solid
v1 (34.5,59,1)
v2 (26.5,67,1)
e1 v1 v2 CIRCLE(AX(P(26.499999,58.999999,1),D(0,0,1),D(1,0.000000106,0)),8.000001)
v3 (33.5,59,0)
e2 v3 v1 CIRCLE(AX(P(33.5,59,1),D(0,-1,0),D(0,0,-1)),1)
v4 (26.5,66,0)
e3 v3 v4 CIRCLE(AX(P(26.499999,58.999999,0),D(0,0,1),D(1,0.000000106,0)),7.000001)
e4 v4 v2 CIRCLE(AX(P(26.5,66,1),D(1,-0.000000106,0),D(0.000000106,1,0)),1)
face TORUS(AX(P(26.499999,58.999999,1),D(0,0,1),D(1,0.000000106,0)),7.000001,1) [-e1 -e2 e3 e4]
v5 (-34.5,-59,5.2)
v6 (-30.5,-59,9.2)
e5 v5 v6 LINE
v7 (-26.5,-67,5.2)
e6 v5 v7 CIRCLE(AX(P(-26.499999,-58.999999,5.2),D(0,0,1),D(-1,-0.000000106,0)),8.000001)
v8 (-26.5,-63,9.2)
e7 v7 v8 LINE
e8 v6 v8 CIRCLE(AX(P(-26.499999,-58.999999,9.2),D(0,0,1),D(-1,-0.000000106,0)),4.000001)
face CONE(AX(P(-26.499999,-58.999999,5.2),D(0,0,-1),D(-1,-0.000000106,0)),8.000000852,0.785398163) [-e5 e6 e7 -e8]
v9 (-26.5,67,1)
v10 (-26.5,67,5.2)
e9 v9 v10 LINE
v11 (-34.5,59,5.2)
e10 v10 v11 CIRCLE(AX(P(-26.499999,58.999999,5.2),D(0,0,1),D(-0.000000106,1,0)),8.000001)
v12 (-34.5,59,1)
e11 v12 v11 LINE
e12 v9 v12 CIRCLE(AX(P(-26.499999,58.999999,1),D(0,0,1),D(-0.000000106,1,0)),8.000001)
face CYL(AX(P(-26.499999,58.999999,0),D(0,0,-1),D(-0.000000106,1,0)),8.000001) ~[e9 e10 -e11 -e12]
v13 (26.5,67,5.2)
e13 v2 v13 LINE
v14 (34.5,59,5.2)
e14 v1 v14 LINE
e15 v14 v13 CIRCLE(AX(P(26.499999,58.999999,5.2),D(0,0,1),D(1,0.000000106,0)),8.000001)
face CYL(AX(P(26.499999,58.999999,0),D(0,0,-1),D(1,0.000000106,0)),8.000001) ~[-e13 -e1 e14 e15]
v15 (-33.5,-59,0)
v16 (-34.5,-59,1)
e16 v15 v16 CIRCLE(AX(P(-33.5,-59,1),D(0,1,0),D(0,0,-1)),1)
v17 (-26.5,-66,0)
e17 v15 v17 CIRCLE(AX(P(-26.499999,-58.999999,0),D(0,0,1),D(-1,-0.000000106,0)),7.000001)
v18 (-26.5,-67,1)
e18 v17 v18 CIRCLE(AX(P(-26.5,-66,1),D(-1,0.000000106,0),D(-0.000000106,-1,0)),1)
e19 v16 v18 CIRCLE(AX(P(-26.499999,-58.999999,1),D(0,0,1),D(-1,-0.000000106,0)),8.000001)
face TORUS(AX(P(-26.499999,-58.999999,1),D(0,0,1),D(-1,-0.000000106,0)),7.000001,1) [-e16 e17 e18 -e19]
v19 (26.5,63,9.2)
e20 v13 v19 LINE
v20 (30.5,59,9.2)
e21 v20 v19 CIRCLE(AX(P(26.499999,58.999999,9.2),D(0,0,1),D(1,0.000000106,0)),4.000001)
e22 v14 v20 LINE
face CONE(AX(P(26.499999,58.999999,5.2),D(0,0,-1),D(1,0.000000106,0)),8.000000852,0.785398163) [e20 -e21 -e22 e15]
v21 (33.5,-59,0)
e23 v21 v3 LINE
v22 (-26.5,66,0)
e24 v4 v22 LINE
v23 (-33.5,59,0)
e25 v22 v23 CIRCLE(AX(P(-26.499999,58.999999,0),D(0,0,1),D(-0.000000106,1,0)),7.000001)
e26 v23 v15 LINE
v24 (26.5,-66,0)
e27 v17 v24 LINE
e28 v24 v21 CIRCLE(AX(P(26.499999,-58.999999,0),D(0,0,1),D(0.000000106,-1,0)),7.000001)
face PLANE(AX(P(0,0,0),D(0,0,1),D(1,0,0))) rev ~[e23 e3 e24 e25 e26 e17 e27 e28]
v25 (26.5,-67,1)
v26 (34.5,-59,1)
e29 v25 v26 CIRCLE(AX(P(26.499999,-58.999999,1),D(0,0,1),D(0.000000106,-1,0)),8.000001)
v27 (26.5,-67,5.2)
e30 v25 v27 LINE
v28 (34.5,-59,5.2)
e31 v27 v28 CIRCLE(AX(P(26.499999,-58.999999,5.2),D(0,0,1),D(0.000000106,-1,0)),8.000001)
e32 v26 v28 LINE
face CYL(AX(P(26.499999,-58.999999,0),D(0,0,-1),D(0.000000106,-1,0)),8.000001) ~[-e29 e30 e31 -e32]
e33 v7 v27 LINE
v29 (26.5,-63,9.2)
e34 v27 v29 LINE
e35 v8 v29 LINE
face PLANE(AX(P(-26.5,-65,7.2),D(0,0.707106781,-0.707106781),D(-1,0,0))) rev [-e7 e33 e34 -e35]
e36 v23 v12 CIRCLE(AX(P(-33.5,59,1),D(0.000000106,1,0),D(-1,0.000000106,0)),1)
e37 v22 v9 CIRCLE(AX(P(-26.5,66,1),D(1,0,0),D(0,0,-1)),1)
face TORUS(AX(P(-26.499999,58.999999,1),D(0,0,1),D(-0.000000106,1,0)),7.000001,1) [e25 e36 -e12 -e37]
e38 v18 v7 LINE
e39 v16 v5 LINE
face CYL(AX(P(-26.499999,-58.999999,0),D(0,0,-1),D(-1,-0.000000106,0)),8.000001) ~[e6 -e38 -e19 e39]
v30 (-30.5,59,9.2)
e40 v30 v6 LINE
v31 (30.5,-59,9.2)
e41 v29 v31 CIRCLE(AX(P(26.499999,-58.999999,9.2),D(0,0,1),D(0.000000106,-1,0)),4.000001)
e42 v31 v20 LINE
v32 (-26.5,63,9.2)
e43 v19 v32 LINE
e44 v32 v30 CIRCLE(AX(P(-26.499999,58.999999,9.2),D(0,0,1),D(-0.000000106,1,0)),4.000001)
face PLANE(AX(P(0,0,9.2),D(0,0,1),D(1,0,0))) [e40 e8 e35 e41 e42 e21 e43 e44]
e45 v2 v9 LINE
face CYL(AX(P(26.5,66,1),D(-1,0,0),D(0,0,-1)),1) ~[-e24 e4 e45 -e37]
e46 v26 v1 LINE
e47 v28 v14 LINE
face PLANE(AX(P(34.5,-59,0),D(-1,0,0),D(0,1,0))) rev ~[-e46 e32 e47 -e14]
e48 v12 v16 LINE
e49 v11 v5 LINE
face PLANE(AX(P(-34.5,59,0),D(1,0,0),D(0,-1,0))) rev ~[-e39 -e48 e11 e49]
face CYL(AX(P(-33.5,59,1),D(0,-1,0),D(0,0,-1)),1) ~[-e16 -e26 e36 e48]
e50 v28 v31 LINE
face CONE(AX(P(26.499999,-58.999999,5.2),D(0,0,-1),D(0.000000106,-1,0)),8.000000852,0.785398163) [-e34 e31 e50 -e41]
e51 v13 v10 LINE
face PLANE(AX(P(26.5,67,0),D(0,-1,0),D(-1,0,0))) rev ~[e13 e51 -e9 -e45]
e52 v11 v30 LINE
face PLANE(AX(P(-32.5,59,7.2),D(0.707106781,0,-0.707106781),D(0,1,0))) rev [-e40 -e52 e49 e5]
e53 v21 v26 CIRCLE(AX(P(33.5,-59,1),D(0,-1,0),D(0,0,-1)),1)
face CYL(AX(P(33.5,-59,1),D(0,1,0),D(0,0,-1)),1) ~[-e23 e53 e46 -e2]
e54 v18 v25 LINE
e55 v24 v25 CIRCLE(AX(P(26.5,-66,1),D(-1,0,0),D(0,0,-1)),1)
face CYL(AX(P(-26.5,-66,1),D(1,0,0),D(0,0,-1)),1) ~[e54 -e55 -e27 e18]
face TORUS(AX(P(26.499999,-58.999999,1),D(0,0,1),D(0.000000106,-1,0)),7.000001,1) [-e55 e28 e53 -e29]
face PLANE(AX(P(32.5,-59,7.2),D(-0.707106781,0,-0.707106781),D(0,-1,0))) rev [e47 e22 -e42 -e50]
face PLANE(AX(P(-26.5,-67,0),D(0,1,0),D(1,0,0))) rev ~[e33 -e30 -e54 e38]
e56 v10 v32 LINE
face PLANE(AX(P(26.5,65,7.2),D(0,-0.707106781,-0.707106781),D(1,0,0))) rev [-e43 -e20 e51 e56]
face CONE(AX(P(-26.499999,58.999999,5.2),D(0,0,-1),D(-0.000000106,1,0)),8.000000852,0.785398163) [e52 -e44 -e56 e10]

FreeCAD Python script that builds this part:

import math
import FreeCAD as App
import Part
import Sketcher

V = App.Vector


def edges_at(feature, points):
    """Names of the edges that pass closest to the given points."""
    edges = feature.Shape.Edges
    near = lambda p: min(range(len(edges)), key=lambda i: edges[i].distToShape(Part.Vertex(*p))[0])
    return sorted({f"Edge{near(p) + 1}" for p in points})

doc = App.newDocument("Part")
body = doc.addObject("PartDesign::Body", "Body")

sketch1 = body.newObject("Sketcher::SketchObject", "Sketch")
sketch1.AttachmentSupport = (doc.getObject("XY_Plane"), [""])
sketch1.MapMode = "FlatFace"
sketch1.addGeometry([
    Part.LineSegment(V(26, 67, 0), V(-26, 67, 0)),
    Part.ArcOfCircle(Part.Circle(V(-26, 59, 0), V(0, 0, 1), 8), math.radians(90), math.radians(180)),
    Part.LineSegment(V(-34, 59, 0), V(-34, -59, 0)),
    Part.ArcOfCircle(Part.Circle(V(-26, -59, 0), V(0, 0, 1), 8), math.radians(-180), math.radians(-90)),
    Part.LineSegment(V(-26, -67, 0), V(26, -67, 0)),
    Part.ArcOfCircle(Part.Circle(V(26, -59, 0), V(0, 0, 1), 8), math.radians(-90), math.radians(0)),
    Part.LineSegment(V(34, -59, 0), V(34, 59, 0)),
    Part.ArcOfCircle(Part.Circle(V(26, 59, 0), V(0, 0, 1), 8), math.radians(0), math.radians(90)),
], False)
sketch1.addConstraint([
    Sketcher.Constraint("Tangent", 0, 2, 1, 1),
    Sketcher.Constraint("Tangent", 1, 2, 2, 1),
    Sketcher.Constraint("Tangent", 2, 2, 3, 1),
    Sketcher.Constraint("Tangent", 3, 2, 4, 1),
    Sketcher.Constraint("Tangent", 4, 2, 5, 1),
    Sketcher.Constraint("Tangent", 5, 2, 6, 1),
    Sketcher.Constraint("Tangent", 6, 2, 7, 1),
    Sketcher.Constraint("Tangent", 7, 2, 0, 1),
    Sketcher.Constraint("Horizontal", 0),
    Sketcher.Constraint("Vertical", 2),
    Sketcher.Constraint("Horizontal", 4),
    Sketcher.Constraint("Vertical", 6),
    Sketcher.Constraint("Equal", 1, 3),
    Sketcher.Constraint("Equal", 3, 5),
    Sketcher.Constraint("Equal", 5, 7),
    Sketcher.Constraint("Symmetric", 1, 3, 5, 3, -1, 1),
    Sketcher.Constraint("Radius", 1, 8.000001),
    Sketcher.Constraint("DistanceX", 0, 2, 0, 1, 53.0),
    Sketcher.Constraint("DistanceY", 2, 2, 2, 1, 118.0),
])
pad1 = body.newObject("PartDesign::Pad", "Pad")
pad1.Profile = sketch1
pad1.Length = 9.2
doc.recompute()

chamfer = body.newObject("PartDesign::Chamfer", "Chamfer")
chamfer.Base = (pad1, edges_at(pad1, [(-34.5, 0, 9.2)]))
chamfer.Size = 4
doc.recompute()

fillet = body.newObject("PartDesign::Fillet", "Fillet")
fillet.Base = (chamfer, edges_at(chamfer, [(34.5, 0, 0)]))
fillet.Radius = 1

doc.recompute()
